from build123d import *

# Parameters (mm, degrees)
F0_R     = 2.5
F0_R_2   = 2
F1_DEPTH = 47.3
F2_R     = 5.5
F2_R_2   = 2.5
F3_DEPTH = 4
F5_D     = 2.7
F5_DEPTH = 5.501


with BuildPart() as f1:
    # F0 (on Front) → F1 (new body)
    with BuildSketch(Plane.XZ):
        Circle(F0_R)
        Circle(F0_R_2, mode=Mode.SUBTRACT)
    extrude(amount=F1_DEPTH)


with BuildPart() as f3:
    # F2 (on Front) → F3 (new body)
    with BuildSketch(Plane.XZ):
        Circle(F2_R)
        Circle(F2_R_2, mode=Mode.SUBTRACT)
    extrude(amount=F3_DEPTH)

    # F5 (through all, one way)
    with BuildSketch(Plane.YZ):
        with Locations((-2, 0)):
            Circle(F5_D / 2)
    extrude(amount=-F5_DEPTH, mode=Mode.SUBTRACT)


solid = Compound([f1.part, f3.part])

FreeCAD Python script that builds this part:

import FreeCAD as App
import Part
import Sketcher
Q = App.Units.Quantity

doc = App.newDocument("Part")
body = doc.addObject("PartDesign::Body", "Body")

# Sketch on XZ plane
sketch1 = body.newObject("Sketcher::SketchObject", "Sketch")
sketch1.AttachmentSupport = (doc.getObject("XZ_Plane"), [""])
sketch1.MapMode = "FlatFace"
sketch1.addGeometry(Part.Circle(App.Vector(0, 0, 0), App.Vector(0, 0, 1), 2.5), False)
sketch1.addGeometry(Part.Circle(App.Vector(0, 0, 0), App.Vector(0, 0, 1), 2), False)
sketch1.addConstraint(Sketcher.Constraint("Coincident", 0, 3, -1, 1))
sketch1.addConstraint(Sketcher.Constraint("Coincident", 1, 3, -1, 1))
sketch1.addConstraint(Sketcher.Constraint("Diameter", 0, Q("5 mm")))
sketch1.addConstraint(Sketcher.Constraint("Diameter", 1, Q("4 mm")))
pad1 = body.newObject("PartDesign::Pad", "Pad")
pad1.Profile = sketch1
pad1.Length = 47.3
body2 = doc.addObject("PartDesign::Body", "Body001")

# Sketch on XZ plane
sketch2 = body2.newObject("Sketcher::SketchObject", "Sketch001")
sketch2.AttachmentSupport = (doc.getObject("XZ_Plane001"), [""])
sketch2.MapMode = "FlatFace"
sketch2.addGeometry(Part.Circle(App.Vector(0, 0, 0), App.Vector(0, 0, 1), 5.5), False)
sketch2.addGeometry(Part.Circle(App.Vector(0, 0, 0), App.Vector(0, 0, 1), 2.5), False)
sketch2.addConstraint(Sketcher.Constraint("Coincident", 0, 3, -1, 1))
sketch2.addConstraint(Sketcher.Constraint("Coincident", 1, 3, -1, 1))
sketch2.addConstraint(Sketcher.Constraint("Diameter", 0, Q("11 mm")))
sketch2.addConstraint(Sketcher.Constraint("Diameter", 1, Q("5 mm")))
pad2 = body2.newObject("PartDesign::Pad", "Pad001")
pad2.Profile = sketch2
pad2.Length = 4

# Sketch on YZ plane
sketch3 = body2.newObject("Sketcher::SketchObject", "Sketch002")
sketch3.AttachmentSupport = (doc.getObject("YZ_Plane001"), [""])
sketch3.MapMode = "FlatFace"
sketch3.addGeometry(Part.Circle(App.Vector(-2, 0, 0), App.Vector(0, 0, 1), 1.4), False)
sketch3.addConstraint(Sketcher.Constraint("PointOnObject", 0, 3, -1))
sketch3.addConstraint(Sketcher.Constraint("Diameter", 0, Q("2.7 mm")))
sketch3.addConstraint(Sketcher.Constraint("DistanceX", 0, 3, -1, 1, Q("2 mm")))
pocket1 = body2.newObject("PartDesign::Pocket", "Pocket")
pocket1.Profile = sketch3
pocket1.Type = "ThroughAll"

doc.recompute()
